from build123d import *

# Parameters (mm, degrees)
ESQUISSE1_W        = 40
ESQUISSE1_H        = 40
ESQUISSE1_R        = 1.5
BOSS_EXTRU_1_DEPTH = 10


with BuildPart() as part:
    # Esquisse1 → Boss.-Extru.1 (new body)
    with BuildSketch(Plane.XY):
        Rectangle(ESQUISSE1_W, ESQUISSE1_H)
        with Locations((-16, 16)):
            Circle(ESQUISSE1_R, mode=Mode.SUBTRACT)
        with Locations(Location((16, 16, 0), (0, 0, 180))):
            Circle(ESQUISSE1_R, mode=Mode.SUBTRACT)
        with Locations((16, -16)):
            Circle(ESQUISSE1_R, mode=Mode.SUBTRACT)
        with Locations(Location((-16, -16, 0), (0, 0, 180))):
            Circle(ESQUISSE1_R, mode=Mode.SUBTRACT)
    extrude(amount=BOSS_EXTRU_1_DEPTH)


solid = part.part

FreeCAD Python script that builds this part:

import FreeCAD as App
import Part
import Sketcher
Q = App.Units.Quantity


def add_polygon(sketch, points):
    """Adds a closed chain of lines whose ends are joined by coincident constraints."""
    first, n = sketch.GeometryCount, len(points)
    for a, b in zip(points, points[1:] + points[:1]):
        sketch.addGeometry(Part.LineSegment(App.Vector(*a, 0), App.Vector(*b, 0)), False)
    for i in range(n):
        sketch.addConstraint(Sketcher.Constraint("Coincident", first + i, 2, first + (i + 1) % n, 1))

doc = App.newDocument("Part")
body = doc.addObject("PartDesign::Body", "Body")

sketch1 = doc.addObject("Sketcher::SketchObject", "Sketch")
body.addObject(sketch1)
sketch1.AttachmentSupport = (doc.XY_Plane, [""])
sketch1.MapMode = "FlatFace"
add_polygon(sketch1, [(-20, 20), (-20, -20), (20, -20), (20, 20)])
sketch1.addGeometry(Part.Circle(App.Vector(-16, -16, 0), App.Vector(0, 0, 1), 1.5), False)
sketch1.addGeometry(Part.Circle(App.Vector(16, -16, 0), App.Vector(0, 0, 1), 1.5), False)
sketch1.addGeometry(Part.Circle(App.Vector(-16, 16, 0), App.Vector(0, 0, 1), 1.5), False)
sketch1.addGeometry(Part.Circle(App.Vector(16, 16, 0), App.Vector(0, 0, 1), 1.5), False)
sketch1.addConstraint(Sketcher.Constraint("Vertical", 0))
sketch1.addConstraint(Sketcher.Constraint("Horizontal", 1))
sketch1.addConstraint(Sketcher.Constraint("Vertical", 2))
sketch1.addConstraint(Sketcher.Constraint("Horizontal", 3))
sketch1.addConstraint(Sketcher.Constraint("Equal", 4, 5))
sketch1.addConstraint(Sketcher.Constraint("Equal", 5, 6))
sketch1.addConstraint(Sketcher.Constraint("Equal", 6, 7))
sketch1.addConstraint(Sketcher.Constraint("Symmetric", 5, 3, 6, 3, -1, 1))
sketch1.addConstraint(Sketcher.Constraint("Symmetric", 4, 3, 7, 3, -1, 1))
sketch1.addConstraint(Sketcher.Constraint("Symmetric", 0, 2, 2, 2, -1, 1))
sketch1.addConstraint(Sketcher.Constraint("Symmetric", 4, 3, 5, 3, -2))
sketch1.addConstraint(Sketcher.Constraint("Equal", 3, 0))
sketch1.addConstraint(Sketcher.Constraint("Diameter", 4, Q("3 mm")))
sketch1.addConstraint(Sketcher.Constraint("DistanceX", 1, 1, 1, 2, Q("40 mm")))
sketch1.addConstraint(Sketcher.Constraint("DistanceX", 4, 3, -1, 1, Q("16 mm")))
sketch1.addConstraint(Sketcher.Constraint("DistanceY", 4, 3, -1, 1, Q("16 mm")))
pad1 = doc.addObject("PartDesign::Pad", "Pad")
body.addObject(pad1)
pad1.Profile = sketch1
pad1.Length = 10

doc.recompute()
